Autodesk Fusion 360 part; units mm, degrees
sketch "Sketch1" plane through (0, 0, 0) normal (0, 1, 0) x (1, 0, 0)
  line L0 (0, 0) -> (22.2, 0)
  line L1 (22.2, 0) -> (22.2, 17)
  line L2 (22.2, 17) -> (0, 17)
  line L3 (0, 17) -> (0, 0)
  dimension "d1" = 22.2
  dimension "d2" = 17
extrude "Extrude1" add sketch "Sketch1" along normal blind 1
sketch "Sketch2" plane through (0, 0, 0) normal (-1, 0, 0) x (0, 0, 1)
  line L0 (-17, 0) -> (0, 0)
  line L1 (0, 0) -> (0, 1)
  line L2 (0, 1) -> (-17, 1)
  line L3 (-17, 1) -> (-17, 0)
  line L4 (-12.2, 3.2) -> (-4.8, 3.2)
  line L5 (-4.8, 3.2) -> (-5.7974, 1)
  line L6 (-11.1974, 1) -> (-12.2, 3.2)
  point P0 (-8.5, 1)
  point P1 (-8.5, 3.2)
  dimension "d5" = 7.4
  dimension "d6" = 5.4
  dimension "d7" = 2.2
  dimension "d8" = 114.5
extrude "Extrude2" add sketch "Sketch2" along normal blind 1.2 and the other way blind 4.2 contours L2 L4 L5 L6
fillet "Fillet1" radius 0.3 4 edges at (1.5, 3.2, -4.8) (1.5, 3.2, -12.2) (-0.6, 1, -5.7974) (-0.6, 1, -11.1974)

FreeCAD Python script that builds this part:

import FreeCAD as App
import Part
import Sketcher
from FreeCAD import Vector
Q = App.Units.Quantity


def edges_at(feature, points):
    """Names of the edges that pass closest to the given points."""
    edges = feature.Shape.Edges
    near = lambda p: min(range(len(edges)), key=lambda i: edges[i].distToShape(Part.Vertex(*p))[0])
    return sorted({f"Edge{near(p) + 1}" for p in points})

doc = App.newDocument("Part")
body = doc.addObject("PartDesign::Body", "Body")

# Sketch on XZ plane
sketch1 = body.newObject("Sketcher::SketchObject", "Sketch")
sketch1.AttachmentSupport = (doc.getObject("XZ_Plane"), [""])
sketch1.MapMode = "FlatFace"
sketch1.addGeometry(Part.LineSegment(Vector(0, -17, 0), Vector(0, 0, 0)), False)
sketch1.addGeometry(Part.LineSegment(Vector(0, 0, 0), Vector(22, 0, 0)), False)
sketch1.addGeometry(Part.LineSegment(Vector(22, 0, 0), Vector(22, -17, 0)), False)
sketch1.addGeometry(Part.LineSegment(Vector(22, -17, 0), Vector(0, -17, 0)), False)
sketch1.addConstraint(Sketcher.Constraint("Coincident", 0, 2, 1, 1))
sketch1.addConstraint(Sketcher.Constraint("Coincident", 1, 2, 2, 1))
sketch1.addConstraint(Sketcher.Constraint("Coincident", 2, 2, 3, 1))
sketch1.addConstraint(Sketcher.Constraint("Coincident", 3, 2, 0, 1))
sketch1.addConstraint(Sketcher.Constraint("Vertical", 0))
sketch1.addConstraint(Sketcher.Constraint("Horizontal", 1))
sketch1.addConstraint(Sketcher.Constraint("Vertical", 2))
sketch1.addConstraint(Sketcher.Constraint("Horizontal", 3))
sketch1.addConstraint(Sketcher.Constraint("Coincident", 0, 2, -1, 1))
sketch1.addConstraint(Sketcher.Constraint("DistanceY", 0, 1, 0, 2, Q("17 mm")))
sketch1.addConstraint(Sketcher.Constraint("DistanceX", 1, 1, 1, 2, Q("22.2 mm")))
pad1 = body.newObject("PartDesign::Pad", "Pad")
pad1.Profile = sketch1
pad1.Length = 1
pad1.Reversed = True

# Sketch on YZ plane
sketch2 = body.newObject("Sketcher::SketchObject", "Sketch001")
sketch2.AttachmentSupport = (doc.getObject("YZ_Plane"), [""])
sketch2.MapMode = "FlatFace"
sketch2.addGeometry(Part.LineSegment(Vector(3.2, -12.2, 0), Vector(1, -11.2, 0)), False)
sketch2.addGeometry(Part.LineSegment(Vector(1, -11.2, 0), Vector(1, -5.8, 0)), False)
sketch2.addGeometry(Part.LineSegment(Vector(1, -5.8, 0), Vector(3.2, -4.8, 0)), False)
sketch2.addGeometry(Part.LineSegment(Vector(3.2, -4.8, 0), Vector(3.2, -12.2, 0)), False)
sketch2.addConstraint(Sketcher.Constraint("Coincident", 0, 2, 1, 1))
sketch2.addConstraint(Sketcher.Constraint("Coincident", 1, 2, 2, 1))
sketch2.addConstraint(Sketcher.Constraint("Coincident", 2, 2, 3, 1))
sketch2.addConstraint(Sketcher.Constraint("Coincident", 3, 2, 0, 1))
sketch2.addConstraint(Sketcher.Constraint("Vertical", 1))
sketch2.addConstraint(Sketcher.Constraint("Vertical", 3))
sketch2.addConstraint(Sketcher.Constraint("DistanceY", 1, 1, 1, 2, Q("5.4 mm")))
sketch2.addConstraint(Sketcher.Constraint("DistanceY", 3, 2, 3, 1, Q("7.4 mm")))
sketch2.addConstraint(Sketcher.Constraint("DistanceX", 1, 2, 2, 2, Q("2.2 mm")))
sketch2.addConstraint(Sketcher.Constraint("DistanceX", -1, 1, 0, 2, Q("1 mm")))
sketch2.addConstraint(Sketcher.Constraint("Angle", 0, Q("155.5 deg")))
sketch2.addConstraint(Sketcher.Constraint("DistanceY", 2, 2, -1, 1, Q("4.8 mm")))
pad2 = body.newObject("PartDesign::Pad", "Pad001")
pad2.Profile = sketch2
pad2.Type = "TwoLengths"
pad2.Length = 1.2
pad2.Length2 = 4.2
pad2.Reversed = True
doc.recompute()

fillet = body.newObject("PartDesign::Fillet", "Fillet")
fillet.Base = (pad2, edges_at(pad2, [
    (1.5, 3.2, -4.8),
    (1.5, 3.2, -12.2),
    (-0.6, 1, -5.797),
    (-0.6, 1, -11.197),
]))
fillet.Radius = 0.3

doc.recompute()
